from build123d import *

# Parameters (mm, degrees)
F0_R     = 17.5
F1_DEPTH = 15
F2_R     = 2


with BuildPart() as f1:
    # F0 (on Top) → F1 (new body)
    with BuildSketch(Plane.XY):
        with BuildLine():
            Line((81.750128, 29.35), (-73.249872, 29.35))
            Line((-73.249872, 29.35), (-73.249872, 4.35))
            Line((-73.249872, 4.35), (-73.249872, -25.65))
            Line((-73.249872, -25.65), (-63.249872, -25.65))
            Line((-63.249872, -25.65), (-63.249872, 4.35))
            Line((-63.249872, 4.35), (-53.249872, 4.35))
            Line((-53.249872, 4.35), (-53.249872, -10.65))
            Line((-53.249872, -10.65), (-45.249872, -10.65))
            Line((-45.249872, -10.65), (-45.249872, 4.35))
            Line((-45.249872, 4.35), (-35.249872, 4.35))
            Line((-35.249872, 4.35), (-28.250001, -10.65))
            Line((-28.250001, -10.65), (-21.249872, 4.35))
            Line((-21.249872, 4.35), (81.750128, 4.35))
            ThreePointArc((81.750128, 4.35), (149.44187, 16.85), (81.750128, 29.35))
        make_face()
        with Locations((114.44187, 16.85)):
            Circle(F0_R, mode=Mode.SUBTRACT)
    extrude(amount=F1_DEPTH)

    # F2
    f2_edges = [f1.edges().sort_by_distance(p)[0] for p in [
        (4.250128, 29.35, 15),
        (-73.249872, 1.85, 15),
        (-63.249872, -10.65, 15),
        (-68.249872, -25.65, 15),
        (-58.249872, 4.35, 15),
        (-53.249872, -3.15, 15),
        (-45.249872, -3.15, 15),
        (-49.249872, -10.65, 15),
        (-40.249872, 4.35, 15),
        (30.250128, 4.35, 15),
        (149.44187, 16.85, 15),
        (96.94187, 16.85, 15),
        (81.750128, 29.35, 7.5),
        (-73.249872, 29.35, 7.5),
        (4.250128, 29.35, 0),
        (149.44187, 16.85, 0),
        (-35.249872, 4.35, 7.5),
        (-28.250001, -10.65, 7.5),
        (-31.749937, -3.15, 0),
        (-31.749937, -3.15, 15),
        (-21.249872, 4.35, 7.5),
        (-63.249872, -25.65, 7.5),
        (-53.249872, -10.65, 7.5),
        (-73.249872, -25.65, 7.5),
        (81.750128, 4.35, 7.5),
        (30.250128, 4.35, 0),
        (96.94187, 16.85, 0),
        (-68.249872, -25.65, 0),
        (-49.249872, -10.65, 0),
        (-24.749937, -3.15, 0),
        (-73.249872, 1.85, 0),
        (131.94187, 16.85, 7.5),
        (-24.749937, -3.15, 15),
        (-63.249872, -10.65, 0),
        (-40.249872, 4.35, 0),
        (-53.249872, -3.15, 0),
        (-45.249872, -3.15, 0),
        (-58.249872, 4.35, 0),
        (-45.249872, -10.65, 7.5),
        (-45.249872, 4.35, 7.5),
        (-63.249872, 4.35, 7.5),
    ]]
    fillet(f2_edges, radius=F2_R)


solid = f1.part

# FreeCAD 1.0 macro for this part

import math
import FreeCAD as App
import Part
import Sketcher

V = App.Vector
Q = App.Units.Quantity


def edges_at(feature, points):
    """Names of the edges that pass closest to the given points."""
    edges = feature.Shape.Edges
    near = lambda p: min(range(len(edges)), key=lambda i: edges[i].distToShape(Part.Vertex(*p))[0])
    return sorted({f"Edge{near(p) + 1}" for p in points})

doc = App.newDocument("Part")
body = doc.addObject("PartDesign::Body", "Body")

# Sketch on XY plane
sketch1 = body.newObject("Sketcher::SketchObject", "Sketch")
sketch1.AttachmentSupport = (doc.getObject("XY_Plane"), [""])
sketch1.MapMode = "FlatFace"
sketch1.addGeometry([
    Part.LineSegment(V(81.750128, 29.35, 0), V(-73.249872, 29.35, 0)),  # 0
    Part.LineSegment(V(-73.249872, 29.35, 0), V(-73.249872, -25.65, 0)),  # 1
    Part.LineSegment(V(-73.249872, -25.65, 0), V(-63.249872, -25.65, 0)),  # 2
    Part.LineSegment(V(-63.249872, -25.65, 0), V(-63.249872, 4.35, 0)),  # 3
    Part.LineSegment(V(-63.249872, 4.35, 0), V(-53.249872, 4.35, 0)),  # 4
    Part.LineSegment(V(-53.249872, 4.35, 0), V(-53.249872, -10.65, 0)),  # 5
    Part.LineSegment(V(-53.249872, -10.65, 0), V(-45.249872, -10.65, 0)),  # 6
    Part.LineSegment(V(-45.249872, -10.65, 0), V(-45.249872, 4.35, 0)),  # 7
    Part.LineSegment(V(-45.249872, 4.35, 0), V(-35.249872, 4.35, 0)),  # 8
    Part.LineSegment(V(-35.249872, 4.35, 0), V(-28.250001, -10.65, 0)),  # 9
    Part.LineSegment(V(-28.250001, -10.65, 0), V(-21.249872, 4.35, 0)),  # 10
    Part.LineSegment(V(-21.249872, 4.35, 0), V(81.750128, 4.35, 0)),  # 11
    Part.ArcOfCircle(Part.Circle(V(114.44187, 16.85, 0), V(0, 0, 1), 35), math.radians(-159.075168), math.radians(159.075168)),  # 12
    Part.Circle(V(114.44187, 16.85, 0), V(0, 0, 1), 17.5),  # 13
], False)
sketch1.addConstraint([
    Sketcher.Constraint("Coincident", 0, 2, 1, 1),
    Sketcher.Constraint("Coincident", 1, 2, 2, 1),
    Sketcher.Constraint("Coincident", 2, 2, 3, 1),
    Sketcher.Constraint("Coincident", 3, 2, 4, 1),
    Sketcher.Constraint("Coincident", 4, 2, 5, 1),
    Sketcher.Constraint("Coincident", 5, 2, 6, 1),
    Sketcher.Constraint("Coincident", 6, 2, 7, 1),
    Sketcher.Constraint("Coincident", 7, 2, 8, 1),
    Sketcher.Constraint("Coincident", 8, 2, 9, 1),
    Sketcher.Constraint("Coincident", 9, 2, 10, 1),
    Sketcher.Constraint("Coincident", 10, 2, 11, 1),
    Sketcher.Constraint("Coincident", 11, 2, 12, 1),
    Sketcher.Constraint("Coincident", 12, 2, 0, 1),
    Sketcher.Constraint("Horizontal", 0),
    Sketcher.Constraint("Vertical", 1),
    Sketcher.Constraint("Horizontal", 2),
    Sketcher.Constraint("Vertical", 3),
    Sketcher.Constraint("Horizontal", 4),
    Sketcher.Constraint("Vertical", 5),
    Sketcher.Constraint("Horizontal", 6),
    Sketcher.Constraint("Vertical", 7),
    Sketcher.Constraint("Horizontal", 8),
    Sketcher.Constraint("Horizontal", 11),
    Sketcher.Constraint("Coincident", 13, 3, 12, 3),
    Sketcher.Constraint("Horizontal", 4, 2, 7, 2),
    Sketcher.Constraint("Horizontal", 6, 2, 9, 2),
    Sketcher.Constraint("Horizontal", 8, 2, 10, 2),
    Sketcher.Constraint("Vertical", 11, 2, 12, 2),
    Sketcher.Constraint("Equal", 2, 4),
    Sketcher.Constraint("Equal", 4, 8),
    Sketcher.Constraint("Diameter", 13, Q("35 mm")),
    Sketcher.Constraint("Radius", 12, Q("35 mm")),
    Sketcher.Constraint("DistanceX", 0, 2, 0, 1, Q("155 mm")),
    Sketcher.Constraint("DistanceX", 2, 1, 2, 2, Q("10 mm")),
    Sketcher.Constraint("DistanceX", 6, 1, 6, 2, Q("8 mm")),
    Sketcher.Constraint("DistanceX", 11, 1, 11, 2, Q("103 mm")),
    Sketcher.Constraint("DistanceY", 1, 2, 1, 1, Q("55 mm")),
    Sketcher.Constraint("DistanceY", 3, 1, 3, 2, Q("30 mm")),
    Sketcher.Constraint("DistanceY", 5, 2, 5, 1, Q("15 mm")),
    Sketcher.Constraint("DistanceY", -1, 1, 12, 3, Q("16.85 mm")),
    Sketcher.Constraint("DistanceX", 9, 2, -1, 1, Q("28.250001 mm")),
    Sketcher.Constraint("Distance", 10, Q("16.553 mm")),
])
pad1 = body.newObject("PartDesign::Pad", "Pad")
pad1.Profile = sketch1
pad1.Length = 15
doc.recompute()

fillet = body.newObject("PartDesign::Fillet", "Fillet")
fillet.Base = (pad1, edges_at(pad1, [
    (4.25, 29.35, 15),
    (-73.25, 1.85, 15),
    (-63.25, -10.65, 15),
    (-68.25, -25.65, 15),
    (-58.25, 4.35, 15),
    (-53.25, -3.15, 15),
    (-45.25, -3.15, 15),
    (-49.25, -10.65, 15),
    (-40.25, 4.35, 15),
    (30.25, 4.35, 15),
    (149.442, 16.85, 15),
    (96.942, 16.85, 15),
    (81.75, 29.35, 7.5),
    (-73.25, 29.35, 7.5),
    (4.25, 29.35, 0),
    (149.442, 16.85, 0),
    (-35.25, 4.35, 7.5),
    (-28.25, -10.65, 7.5),
    (-31.75, -3.15, 0),
    (-31.75, -3.15, 15),
    (-21.25, 4.35, 7.5),
    (-63.25, -25.65, 7.5),
    (-53.25, -10.65, 7.5),
    (-73.25, -25.65, 7.5),
    (81.75, 4.35, 7.5),
    (30.25, 4.35, 0),
    (96.942, 16.85, 0),
    (-68.25, -25.65, 0),
    (-49.25, -10.65, 0),
    (-24.75, -3.15, 0),
    (-73.25, 1.85, 0),
    (131.942, 16.85, 7.5),
    (-24.75, -3.15, 15),
    (-63.25, -10.65, 0),
    (-40.25, 4.35, 0),
    (-53.25, -3.15, 0),
    (-45.25, -3.15, 0),
    (-58.25, 4.35, 0),
    (-45.25, -10.65, 7.5),
    (-45.25, 4.35, 7.5),
    (-63.25, 4.35, 7.5),
]))
fillet.Radius = 2

doc.recompute()
